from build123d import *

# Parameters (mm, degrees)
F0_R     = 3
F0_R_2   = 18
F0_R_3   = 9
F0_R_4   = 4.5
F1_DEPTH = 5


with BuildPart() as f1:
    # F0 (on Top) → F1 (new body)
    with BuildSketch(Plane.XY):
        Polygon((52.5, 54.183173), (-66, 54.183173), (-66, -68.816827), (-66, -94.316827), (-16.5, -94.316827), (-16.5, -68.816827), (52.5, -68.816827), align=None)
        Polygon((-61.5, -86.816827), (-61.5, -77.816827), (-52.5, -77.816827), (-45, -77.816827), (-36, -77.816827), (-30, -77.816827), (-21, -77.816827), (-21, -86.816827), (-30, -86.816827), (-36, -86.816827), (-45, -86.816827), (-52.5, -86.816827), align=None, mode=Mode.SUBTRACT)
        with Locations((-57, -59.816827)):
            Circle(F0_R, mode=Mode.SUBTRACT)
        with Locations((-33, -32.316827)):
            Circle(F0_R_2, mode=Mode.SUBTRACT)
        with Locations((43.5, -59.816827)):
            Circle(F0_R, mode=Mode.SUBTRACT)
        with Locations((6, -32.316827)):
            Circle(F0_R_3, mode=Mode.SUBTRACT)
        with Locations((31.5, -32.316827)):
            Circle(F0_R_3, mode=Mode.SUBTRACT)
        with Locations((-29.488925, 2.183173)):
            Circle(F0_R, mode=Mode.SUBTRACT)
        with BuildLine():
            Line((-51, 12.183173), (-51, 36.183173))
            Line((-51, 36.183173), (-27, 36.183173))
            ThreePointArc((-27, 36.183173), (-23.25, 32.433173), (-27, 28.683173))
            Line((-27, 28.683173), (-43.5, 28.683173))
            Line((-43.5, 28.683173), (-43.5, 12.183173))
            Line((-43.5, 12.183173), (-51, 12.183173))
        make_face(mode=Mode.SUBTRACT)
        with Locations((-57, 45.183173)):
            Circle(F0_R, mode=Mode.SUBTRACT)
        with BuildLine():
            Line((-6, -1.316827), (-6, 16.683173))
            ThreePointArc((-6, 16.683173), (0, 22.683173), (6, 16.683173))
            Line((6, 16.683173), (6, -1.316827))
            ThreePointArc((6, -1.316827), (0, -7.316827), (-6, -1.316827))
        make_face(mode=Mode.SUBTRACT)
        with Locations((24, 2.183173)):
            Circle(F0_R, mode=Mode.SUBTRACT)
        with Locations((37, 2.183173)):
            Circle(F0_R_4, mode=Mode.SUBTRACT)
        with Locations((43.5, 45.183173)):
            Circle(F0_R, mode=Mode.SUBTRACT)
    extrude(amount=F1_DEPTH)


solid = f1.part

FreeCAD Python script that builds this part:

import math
import FreeCAD as App
import Part
import Sketcher

V = App.Vector
Q = App.Units.Quantity

doc = App.newDocument("Part")
body = doc.addObject("PartDesign::Body", "Body")

# Sketch on XY plane
sketch1 = doc.addObject("Sketcher::SketchObject", "Sketch")
body.addObject(sketch1)
sketch1.AttachmentSupport = (doc.XY_Plane, [""])
sketch1.MapMode = "FlatFace"
sketch1.addGeometry(Part.LineSegment(V(52.5, 54.183173, 0), V(-66, 54.183173, 0)), False)
sketch1.addGeometry(Part.LineSegment(V(-66, 54.183173, 0), V(-66, -94.316827, 0)), False)
sketch1.addGeometry(Part.LineSegment(V(-66, -94.316827, 0), V(-16.5, -94.316827, 0)), False)
sketch1.addGeometry(Part.LineSegment(V(-16.5, -94.316827, 0), V(-16.5, -68.816827, 0)), False)
sketch1.addGeometry(Part.LineSegment(V(-16.5, -68.816827, 0), V(52.5, -68.816827, 0)), False)
sketch1.addGeometry(Part.LineSegment(V(52.5, -68.816827, 0), V(52.5, 54.183173, 0)), False)
sketch1.addGeometry(Part.LineSegment(V(-21, -86.816827, 0), V(-61.5, -86.816827, 0)), False)
sketch1.addGeometry(Part.LineSegment(V(-61.5, -86.816827, 0), V(-61.5, -77.816827, 0)), False)
sketch1.addGeometry(Part.LineSegment(V(-61.5, -77.816827, 0), V(-21, -77.816827, 0)), False)
sketch1.addGeometry(Part.LineSegment(V(-21, -77.816827, 0), V(-21, -86.816827, 0)), False)
sketch1.addGeometry(Part.Circle(V(-57, -59.816827, 0), V(0, 0, 1), 3), False)
sketch1.addGeometry(Part.Circle(V(-33, -32.316827, 0), V(0, 0, 1), 18), False)
sketch1.addGeometry(Part.Circle(V(43.5, -59.816827, 0), V(0, 0, 1), 3), False)
sketch1.addGeometry(Part.Circle(V(6, -32.316827, 0), V(0, 0, 1), 9), False)
sketch1.addGeometry(Part.Circle(V(31.5, -32.316827, 0), V(0, 0, 1), 9), False)
sketch1.addGeometry(Part.Circle(V(-29.488925, 2.183173, 0), V(0, 0, 1), 3), False)
sketch1.addGeometry(Part.LineSegment(V(-43.5, 12.183173, 0), V(-51, 12.183173, 0)), False)
sketch1.addGeometry(Part.LineSegment(V(-51, 12.183173, 0), V(-51, 36.183173, 0)), False)
sketch1.addGeometry(Part.LineSegment(V(-51, 36.183173, 0), V(-27, 36.183173, 0)), False)
sketch1.addGeometry(Part.ArcOfCircle(Part.Circle(V(-27, 32.433173, 0), V(0, 0, 1), 3.75), math.radians(-90), math.radians(90)), False)
sketch1.addGeometry(Part.LineSegment(V(-27, 28.683173, 0), V(-43.5, 28.683173, 0)), False)
sketch1.addGeometry(Part.LineSegment(V(-43.5, 28.683173, 0), V(-43.5, 12.183173, 0)), False)
sketch1.addGeometry(Part.Circle(V(-57, 45.183173, 0), V(0, 0, 1), 3), False)
sketch1.addGeometry(Part.ArcOfCircle(Part.Circle(V(0, -1.316827, 0), V(0, 0, 1), 6), math.radians(180), math.radians(360)), False)
sketch1.addGeometry(Part.LineSegment(V(-6, -1.316827, 0), V(-6, 16.683173, 0)), False)
sketch1.addGeometry(Part.ArcOfCircle(Part.Circle(V(0, 16.683173, 0), V(0, 0, 1), 6), math.radians(0), math.radians(180)), False)
sketch1.addGeometry(Part.LineSegment(V(6, 16.683173, 0), V(6, -1.316827, 0)), False)
sketch1.addGeometry(Part.Circle(V(24, 2.183173, 0), V(0, 0, 1), 3), False)
sketch1.addGeometry(Part.Circle(V(37, 2.183173, 0), V(0, 0, 1), 4.5), False)
sketch1.addGeometry(Part.Circle(V(43.5, 45.183173, 0), V(0, 0, 1), 3), False)
sketch1.addConstraint(Sketcher.Constraint("Coincident", 0, 2, 1, 1))
sketch1.addConstraint(Sketcher.Constraint("Coincident", 1, 2, 2, 1))
sketch1.addConstraint(Sketcher.Constraint("Coincident", 2, 2, 3, 1))
sketch1.addConstraint(Sketcher.Constraint("Coincident", 3, 2, 4, 1))
sketch1.addConstraint(Sketcher.Constraint("Coincident", 4, 2, 5, 1))
sketch1.addConstraint(Sketcher.Constraint("Coincident", 5, 2, 0, 1))
sketch1.addConstraint(Sketcher.Constraint("Coincident", 6, 2, 7, 1))
sketch1.addConstraint(Sketcher.Constraint("Coincident", 7, 2, 8, 1))
sketch1.addConstraint(Sketcher.Constraint("Coincident", 8, 2, 9, 1))
sketch1.addConstraint(Sketcher.Constraint("Coincident", 9, 2, 6, 1))
sketch1.addConstraint(Sketcher.Constraint("Coincident", 16, 2, 17, 1))
sketch1.addConstraint(Sketcher.Constraint("Coincident", 17, 2, 18, 1))
sketch1.addConstraint(Sketcher.Constraint("Tangent", 18, 2, 19, 2))
sketch1.addConstraint(Sketcher.Constraint("Tangent", 19, 1, 20, 1))
sketch1.addConstraint(Sketcher.Constraint("Coincident", 20, 2, 21, 1))
sketch1.addConstraint(Sketcher.Constraint("Coincident", 21, 2, 16, 1))
sketch1.addConstraint(Sketcher.Constraint("Tangent", 23, 1, 24, 1))
sketch1.addConstraint(Sketcher.Constraint("Tangent", 24, 2, 25, 2))
sketch1.addConstraint(Sketcher.Constraint("Tangent", 25, 1, 26, 1))
sketch1.addConstraint(Sketcher.Constraint("Tangent", 26, 2, 23, 2))
sketch1.addConstraint(Sketcher.Constraint("Horizontal", 0))
sketch1.addConstraint(Sketcher.Constraint("Vertical", 1))
sketch1.addConstraint(Sketcher.Constraint("Horizontal", 2))
sketch1.addConstraint(Sketcher.Constraint("Vertical", 3))
sketch1.addConstraint(Sketcher.Constraint("Horizontal", 4))
sketch1.addConstraint(Sketcher.Constraint("Vertical", 5))
sketch1.addConstraint(Sketcher.Constraint("Horizontal", 6))
sketch1.addConstraint(Sketcher.Constraint("Vertical", 7))
sketch1.addConstraint(Sketcher.Constraint("Horizontal", 8))
sketch1.addConstraint(Sketcher.Constraint("Vertical", 9))
sketch1.addConstraint(Sketcher.Constraint("Horizontal", 16))
sketch1.addConstraint(Sketcher.Constraint("Vertical", 17))
sketch1.addConstraint(Sketcher.Constraint("Horizontal", 18))
sketch1.addConstraint(Sketcher.Constraint("Horizontal", 20))
sketch1.addConstraint(Sketcher.Constraint("Vertical", 21))
sketch1.addConstraint(Sketcher.Constraint("Vertical", 24))
sketch1.addConstraint(Sketcher.Constraint("Vertical", 26))
sketch1.addConstraint(Sketcher.Constraint("Equal", 10, 12))
sketch1.addConstraint(Sketcher.Constraint("Equal", 13, 14))
sketch1.addConstraint(Sketcher.Constraint("Equal", 12, 15))
sketch1.addConstraint(Sketcher.Constraint("Equal", 15, 22))
sketch1.addConstraint(Sketcher.Constraint("Equal", 22, 27))
sketch1.addConstraint(Sketcher.Constraint("Equal", 27, 29))
sketch1.addConstraint(Sketcher.Constraint("PointOnObject", 23, 3, -2))
sketch1.addConstraint(Sketcher.Constraint("Horizontal", 10, 3, 12, 3))
sketch1.addConstraint(Sketcher.Constraint("Horizontal", 11, 3, 13, 3))
sketch1.addConstraint(Sketcher.Constraint("Horizontal", 13, 3, 14, 3))
sketch1.addConstraint(Sketcher.Constraint("Horizontal", 15, 3, 27, 3))
sketch1.addConstraint(Sketcher.Constraint("Horizontal", 27, 3, 28, 3))
sketch1.addConstraint(Sketcher.Constraint("Horizontal", 22, 3, 29, 3))
sketch1.addConstraint(Sketcher.Constraint("Vertical", 10, 3, 22, 3))
sketch1.addConstraint(Sketcher.Constraint("Vertical", 12, 3, 29, 3))
sketch1.addConstraint(Sketcher.Constraint("Vertical", 13, 3, 25, 1))
sketch1.addConstraint(Sketcher.Constraint("Equal", 18, 17))
sketch1.addConstraint(Sketcher.Constraint("Equal", 20, 21))
sketch1.addConstraint(Sketcher.Constraint("Diameter", 10, Q("6 mm")))
sketch1.addConstraint(Sketcher.Constraint("Diameter", 11, Q("36 mm")))
sketch1.addConstraint(Sketcher.Constraint("Diameter", 13, Q("18 mm")))
sketch1.addConstraint(Sketcher.Constraint("Diameter", 28, Q("9 mm")))
sketch1.addConstraint(Sketcher.Constraint("Radius", 23, Q("6 mm")))
sketch1.addConstraint(Sketcher.Constraint("DistanceX", 4, 1, 4, 2, Q("69 mm")))
sketch1.addConstraint(Sketcher.Constraint("DistanceX", 18, 1, 18, 2, Q("24 mm")))
sketch1.addConstraint(Sketcher.Constraint("DistanceY", 5, 1, 5, 2, Q("123 mm")))
sketch1.addConstraint(Sketcher.Constraint("DistanceY", 7, 1, 7, 2, Q("9 mm")))
sketch1.addConstraint(Sketcher.Constraint("DistanceY", 24, 1, 24, 2, Q("18 mm")))
sketch1.addConstraint(Sketcher.Constraint("Radius", 19, Q("3.75 mm")))
sketch1.addConstraint(Sketcher.Constraint("DistanceX", 0, 2, 0, 1, Q("118.5 mm")))
sketch1.addConstraint(Sketcher.Constraint("DistanceX", 6, 2, 6, 1, Q("40.5 mm")))
sketch1.addConstraint(Sketcher.Constraint("DistanceY", 1, 2, 1, 1, Q("148.5 mm")))
sketch1.addConstraint(Sketcher.Constraint("DistanceX", 10, 3, -1, 1, Q("57 mm")))
sketch1.addConstraint(Sketcher.Constraint("DistanceX", 11, 3, -1, 1, Q("33 mm")))
sketch1.addConstraint(Sketcher.Constraint("DistanceX", 19, 3, -1, 1, Q("27 mm")))
sketch1.addConstraint(Sketcher.Constraint("DistanceX", -1, 1, 27, 3, Q("24 mm")))
sketch1.addConstraint(Sketcher.Constraint("DistanceX", -1, 1, 28, 3, Q("37 mm")))
sketch1.addConstraint(Sketcher.Constraint("DistanceX", 0, 2, -1, 1, Q("66 mm")))
sketch1.addConstraint(Sketcher.Constraint("DistanceX", 8, 2, -1, 1, Q("21 mm")))
sketch1.addConstraint(Sketcher.Constraint("DistanceX", 14, 3, 12, 3, Q("12 mm")))
sketch1.addConstraint(Sketcher.Constraint("DistanceY", 10, 3, 15, 3, Q("62 mm")))
sketch1.addConstraint(Sketcher.Constraint("DistanceY", 15, 3, 22, 3, Q("43 mm")))
sketch1.addConstraint(Sketcher.Constraint("DistanceY", 13, 3, 23, 3, Q("31 mm")))
sketch1.addConstraint(Sketcher.Constraint("DistanceY", 22, 3, 0, 2, Q("9 mm")))
sketch1.addConstraint(Sketcher.Constraint("DistanceY", 1, 2, 11, 3, Q("62 mm")))
sketch1.addConstraint(Sketcher.Constraint("DistanceX", 2, 2, 12, 3, Q("60 mm")))
sketch1.addConstraint(Sketcher.Constraint("DistanceY", 6, 2, 10, 3, Q("27 mm")))
sketch1.addConstraint(Sketcher.Constraint("DistanceY", 15, 3, 16, 2, Q("10 mm")))
sketch1.addConstraint(Sketcher.Constraint("DistanceY", 10, 3, -1, 1, Q("59.816827 mm")))
sketch1.addConstraint(Sketcher.Constraint("DistanceX", 15, 3, -1, 1, Q("29.488925 mm")))
pad1 = doc.addObject("PartDesign::Pad", "Pad")
body.addObject(pad1)
pad1.Profile = sketch1
pad1.Length = 5

doc.recompute()
